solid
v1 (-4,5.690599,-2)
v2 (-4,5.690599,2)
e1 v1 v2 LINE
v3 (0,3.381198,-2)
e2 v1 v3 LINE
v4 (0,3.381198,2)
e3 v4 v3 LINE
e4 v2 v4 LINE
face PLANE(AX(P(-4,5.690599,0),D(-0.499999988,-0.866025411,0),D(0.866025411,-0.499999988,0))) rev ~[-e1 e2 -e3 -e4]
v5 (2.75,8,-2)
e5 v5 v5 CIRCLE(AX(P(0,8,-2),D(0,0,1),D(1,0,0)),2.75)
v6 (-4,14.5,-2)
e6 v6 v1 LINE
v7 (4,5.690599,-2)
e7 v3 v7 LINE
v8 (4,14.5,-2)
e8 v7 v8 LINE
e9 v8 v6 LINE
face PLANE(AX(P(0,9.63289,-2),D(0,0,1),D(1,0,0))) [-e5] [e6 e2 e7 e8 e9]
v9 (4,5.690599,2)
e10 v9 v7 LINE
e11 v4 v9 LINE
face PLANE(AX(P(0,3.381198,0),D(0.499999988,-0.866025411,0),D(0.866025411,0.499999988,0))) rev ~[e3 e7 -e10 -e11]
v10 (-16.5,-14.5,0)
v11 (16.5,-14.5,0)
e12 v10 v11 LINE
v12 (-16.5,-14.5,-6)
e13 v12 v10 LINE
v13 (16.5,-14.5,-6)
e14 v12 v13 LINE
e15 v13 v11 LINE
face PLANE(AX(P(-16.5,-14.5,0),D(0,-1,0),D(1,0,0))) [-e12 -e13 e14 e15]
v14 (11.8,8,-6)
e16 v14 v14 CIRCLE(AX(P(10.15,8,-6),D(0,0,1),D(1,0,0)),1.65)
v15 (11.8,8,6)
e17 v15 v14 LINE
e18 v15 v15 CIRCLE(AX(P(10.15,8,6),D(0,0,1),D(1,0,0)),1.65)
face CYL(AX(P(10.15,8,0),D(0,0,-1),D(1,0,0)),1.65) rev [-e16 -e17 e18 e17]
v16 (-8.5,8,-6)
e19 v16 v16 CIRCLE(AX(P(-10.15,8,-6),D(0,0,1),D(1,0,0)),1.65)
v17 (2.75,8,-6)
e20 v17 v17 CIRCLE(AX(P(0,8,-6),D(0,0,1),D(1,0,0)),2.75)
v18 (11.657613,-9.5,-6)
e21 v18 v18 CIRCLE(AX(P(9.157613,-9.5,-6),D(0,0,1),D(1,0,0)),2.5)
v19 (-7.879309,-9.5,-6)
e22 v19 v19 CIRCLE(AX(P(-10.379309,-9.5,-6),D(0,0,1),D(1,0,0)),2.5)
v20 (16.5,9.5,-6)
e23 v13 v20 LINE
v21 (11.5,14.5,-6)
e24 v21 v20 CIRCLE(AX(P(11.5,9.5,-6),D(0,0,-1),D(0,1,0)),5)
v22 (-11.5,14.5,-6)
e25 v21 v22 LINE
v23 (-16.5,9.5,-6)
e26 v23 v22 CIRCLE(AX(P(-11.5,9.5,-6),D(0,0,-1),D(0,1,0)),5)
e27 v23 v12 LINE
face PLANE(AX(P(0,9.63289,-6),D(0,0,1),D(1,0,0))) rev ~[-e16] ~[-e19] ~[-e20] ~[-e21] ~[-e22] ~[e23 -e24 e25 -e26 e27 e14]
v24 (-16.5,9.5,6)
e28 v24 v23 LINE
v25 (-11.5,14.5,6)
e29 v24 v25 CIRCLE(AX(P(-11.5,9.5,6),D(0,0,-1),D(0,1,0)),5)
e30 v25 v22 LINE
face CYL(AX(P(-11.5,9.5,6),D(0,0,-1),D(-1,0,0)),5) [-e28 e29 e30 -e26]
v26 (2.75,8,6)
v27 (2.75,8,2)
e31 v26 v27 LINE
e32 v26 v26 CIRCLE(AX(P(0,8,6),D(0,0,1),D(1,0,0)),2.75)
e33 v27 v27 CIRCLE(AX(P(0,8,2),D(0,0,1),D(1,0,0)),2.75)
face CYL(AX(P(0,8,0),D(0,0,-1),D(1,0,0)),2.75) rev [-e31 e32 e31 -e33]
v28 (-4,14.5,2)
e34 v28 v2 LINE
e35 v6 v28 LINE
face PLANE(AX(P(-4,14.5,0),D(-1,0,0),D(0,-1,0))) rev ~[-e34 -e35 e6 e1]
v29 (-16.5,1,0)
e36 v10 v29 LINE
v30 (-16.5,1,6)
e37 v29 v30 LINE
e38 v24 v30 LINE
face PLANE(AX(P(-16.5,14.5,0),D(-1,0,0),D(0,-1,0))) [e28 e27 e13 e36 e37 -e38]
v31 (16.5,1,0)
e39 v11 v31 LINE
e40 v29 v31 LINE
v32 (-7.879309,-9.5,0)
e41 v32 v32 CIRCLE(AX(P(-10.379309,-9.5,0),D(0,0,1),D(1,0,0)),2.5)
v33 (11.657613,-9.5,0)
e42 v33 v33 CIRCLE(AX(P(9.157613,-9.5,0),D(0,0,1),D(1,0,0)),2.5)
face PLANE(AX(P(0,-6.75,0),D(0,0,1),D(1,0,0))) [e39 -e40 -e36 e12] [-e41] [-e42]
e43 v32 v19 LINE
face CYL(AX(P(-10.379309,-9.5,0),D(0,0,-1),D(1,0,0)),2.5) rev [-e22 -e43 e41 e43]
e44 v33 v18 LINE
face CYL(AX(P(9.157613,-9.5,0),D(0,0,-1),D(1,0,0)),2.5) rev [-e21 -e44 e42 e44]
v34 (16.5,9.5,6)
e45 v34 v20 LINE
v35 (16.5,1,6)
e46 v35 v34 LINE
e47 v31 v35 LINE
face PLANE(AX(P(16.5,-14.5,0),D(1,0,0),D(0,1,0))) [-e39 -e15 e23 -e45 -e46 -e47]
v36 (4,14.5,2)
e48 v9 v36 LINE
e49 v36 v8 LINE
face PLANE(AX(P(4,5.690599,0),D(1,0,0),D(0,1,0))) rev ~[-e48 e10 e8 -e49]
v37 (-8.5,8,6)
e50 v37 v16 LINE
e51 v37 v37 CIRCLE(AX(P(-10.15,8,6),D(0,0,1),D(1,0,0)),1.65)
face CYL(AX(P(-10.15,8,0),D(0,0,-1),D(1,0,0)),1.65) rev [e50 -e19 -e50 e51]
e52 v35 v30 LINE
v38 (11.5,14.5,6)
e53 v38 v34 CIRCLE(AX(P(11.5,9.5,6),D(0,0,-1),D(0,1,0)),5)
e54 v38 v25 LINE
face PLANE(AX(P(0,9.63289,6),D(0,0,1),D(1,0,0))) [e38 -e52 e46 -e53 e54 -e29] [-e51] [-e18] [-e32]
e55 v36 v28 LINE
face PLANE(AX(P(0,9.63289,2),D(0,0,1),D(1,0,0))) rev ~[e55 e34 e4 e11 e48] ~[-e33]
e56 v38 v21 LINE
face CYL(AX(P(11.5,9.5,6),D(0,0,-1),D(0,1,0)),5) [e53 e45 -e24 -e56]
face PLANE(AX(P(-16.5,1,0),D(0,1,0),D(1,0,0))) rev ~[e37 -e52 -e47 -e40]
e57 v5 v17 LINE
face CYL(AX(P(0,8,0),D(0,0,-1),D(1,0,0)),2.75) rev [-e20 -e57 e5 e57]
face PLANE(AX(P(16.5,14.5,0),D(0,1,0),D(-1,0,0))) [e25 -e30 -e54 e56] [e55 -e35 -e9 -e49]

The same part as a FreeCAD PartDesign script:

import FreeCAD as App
import Part
import Sketcher
from FreeCAD import Vector
Q = App.Units.Quantity


def edges_at(feature, points):
    """Names of the edges that pass closest to the given points."""
    edges = feature.Shape.Edges
    near = lambda p: min(range(len(edges)), key=lambda i: edges[i].distToShape(Part.Vertex(*p))[0])
    return sorted({f"Edge{near(p) + 1}" for p in points})

doc = App.newDocument("Part")
body = doc.addObject("PartDesign::Body", "Body")

# Sketch on XY plane
sketch1 = body.newObject("Sketcher::SketchObject", "Sketch")
sketch1.AttachmentSupport = (doc.getObject("XY_Plane"), [""])
sketch1.MapMode = "FlatFace"
sketch1.addGeometry([
    Part.LineSegment(Vector(-16.5, 14.5, 0), Vector(-16.5, -14.5, 0)),  # 0
    Part.LineSegment(Vector(-16.5, -14.5, 0), Vector(16.5, -14.5, 0)),  # 1
    Part.LineSegment(Vector(16.5, -14.5, 0), Vector(16.5, 14.5, 0)),  # 2
    Part.LineSegment(Vector(16.5, 14.5, 0), Vector(-16.5, 14.5, 0)),  # 3
    Part.Circle(Vector(-10.4, -9.5, 0), Vector(0, 0, 1), 2.5),  # 4
    Part.Circle(Vector(9.2, -9.5, 0), Vector(0, 0, 1), 2.5),  # 5
    Part.Circle(Vector(-10.2, 8, 0), Vector(0, 0, 1), 1.6),  # 6
    Part.Circle(Vector(0, 8, 0), Vector(0, 0, 1), 2.8),  # 7
    Part.Circle(Vector(10.2, 8, 0), Vector(0, 0, 1), 1.6),  # 8
], False)
sketch1.addConstraint([
    Sketcher.Constraint("Coincident", 0, 2, 1, 1),
    Sketcher.Constraint("Coincident", 1, 2, 2, 1),
    Sketcher.Constraint("Coincident", 2, 2, 3, 1),
    Sketcher.Constraint("Coincident", 3, 2, 0, 1),
    Sketcher.Constraint("Vertical", 0),
    Sketcher.Constraint("Horizontal", 1),
    Sketcher.Constraint("Vertical", 2),
    Sketcher.Constraint("Horizontal", 3),
    Sketcher.Constraint("Equal", 4, 5),
    Sketcher.Constraint("Equal", 6, 8),
    Sketcher.Constraint("Symmetric", 0, 2, 2, 2, -1, 1),
    Sketcher.Constraint("Symmetric", 6, 3, 8, 3, -2),
    Sketcher.Constraint("PointOnObject", 7, 3, -2),
    Sketcher.Constraint("Horizontal", 4, 3, 5, 3),
    Sketcher.Constraint("Horizontal", 6, 3, 7, 3),
    Sketcher.Constraint("Diameter", 4, Q("5 mm")),
    Sketcher.Constraint("Diameter", 6, Q("3.3 mm")),
    Sketcher.Constraint("Diameter", 7, Q("5.5 mm")),
    Sketcher.Constraint("DistanceX", 1, 1, 1, 2, Q("33 mm")),
    Sketcher.Constraint("DistanceY", 0, 2, 0, 1, Q("29 mm")),
    Sketcher.Constraint("DistanceY", -1, 1, 6, 3, Q("8 mm")),
    Sketcher.Constraint("DistanceY", 0, 2, 4, 3, Q("5 mm")),
    Sketcher.Constraint("DistanceX", 6, 3, 8, 3, Q("20.3 mm")),
    Sketcher.Constraint("DistanceX", 4, 3, -1, 1, Q("10.379309 mm")),
    Sketcher.Constraint("DistanceX", 4, 3, 5, 3, Q("19.536922 mm")),
])
pad1 = body.newObject("PartDesign::Pad", "Pad")
pad1.Profile = sketch1
pad1.Length = 12
pad1.Midplane = True
doc.recompute()

fillet = body.newObject("PartDesign::Fillet", "Fillet")
fillet.Base = (pad1, edges_at(pad1, [(16.5, 14.5, 0), (-16.5, 14.5, 0)]))
fillet.Radius = 5

# Sketch on XY plane
sketch2 = body.newObject("Sketcher::SketchObject", "Sketch001")
sketch2.AttachmentSupport = (doc.getObject("XY_Plane"), [""])
sketch2.MapMode = "FlatFace"
sketch2.addGeometry([
    Part.LineSegment(Vector(4, 14.5, 0), Vector(-4, 14.5, 0)),  # 0
    Part.LineSegment(Vector(-4, 14.5, 0), Vector(-4, 5.7, 0)),  # 1
    Part.LineSegment(Vector(-4, 5.7, 0), Vector(0, 3.4, 0)),  # 2
    Part.LineSegment(Vector(0, 3.4, 0), Vector(4, 5.7, 0)),  # 3
    Part.LineSegment(Vector(4, 5.7, 0), Vector(4, 14.5, 0)),  # 4
    Part.Circle(Vector(0, 8, 0), Vector(0, 0, 1), 2.8),  # 5
], False)
sketch2.addConstraint([
    Sketcher.Constraint("Coincident", 0, 2, 1, 1),
    Sketcher.Constraint("Coincident", 1, 2, 2, 1),
    Sketcher.Constraint("Coincident", 2, 2, 3, 1),
    Sketcher.Constraint("Coincident", 3, 2, 4, 1),
    Sketcher.Constraint("Coincident", 4, 2, 0, 1),
    Sketcher.Constraint("Horizontal", 0),
    Sketcher.Constraint("Vertical", 1),
    Sketcher.Constraint("Vertical", 4),
    Sketcher.Constraint("Symmetric", 1, 2, 3, 2, -2),
    Sketcher.Constraint("PointOnObject", 5, 3, -2),
    Sketcher.Constraint("PointOnObject", 2, 2, -2),
    Sketcher.Constraint("Diameter", 5, Q("5.5 mm")),
    Sketcher.Constraint("DistanceX", 0, 2, 0, 1, Q("8 mm")),
    Sketcher.Constraint("Angle", 2, Q("-29.999999 deg")),
    Sketcher.Constraint("DistanceY", -1, 1, 5, 3, Q("8 mm")),
    Sketcher.Constraint("DistanceY", -1, 1, 0, 2, Q("14.5 mm")),
    Sketcher.Constraint("DistanceY", 1, 2, 1, 1, Q("8.809401 mm")),
])
pocket1 = body.newObject("PartDesign::Pocket", "Pocket")
pocket1.Profile = sketch2
pocket1.Length = 4
pocket1.Midplane = True

# Sketch on XY plane
sketch3 = body.newObject("Sketcher::SketchObject", "Sketch002")
sketch3.AttachmentSupport = (doc.getObject("XY_Plane"), [""])
sketch3.MapMode = "FlatFace"
sketch3.addGeometry([
    Part.LineSegment(Vector(-16.5, 1, 0), Vector(-16.5, -14.5, 0)),  # 0
    Part.LineSegment(Vector(-16.5, -14.5, 0), Vector(16.5, -14.5, 0)),  # 1
    Part.LineSegment(Vector(16.5, -14.5, 0), Vector(16.5, 1, 0)),  # 2
    Part.LineSegment(Vector(16.5, 1, 0), Vector(-16.5, 1, 0)),  # 3
    Part.Circle(Vector(-10.4, -9.5, 0), Vector(0, 0, 1), 2.5),  # 4
    Part.Circle(Vector(9.2, -9.5, 0), Vector(0, 0, 1), 2.5),  # 5
], False)
sketch3.addConstraint([
    Sketcher.Constraint("Coincident", 0, 2, 1, 1),
    Sketcher.Constraint("Coincident", 1, 2, 2, 1),
    Sketcher.Constraint("Coincident", 2, 2, 3, 1),
    Sketcher.Constraint("Coincident", 3, 2, 0, 1),
    Sketcher.Constraint("Vertical", 0),
    Sketcher.Constraint("Horizontal", 1),
    Sketcher.Constraint("Vertical", 2),
    Sketcher.Constraint("Horizontal", 3),
    Sketcher.Constraint("Equal", 4, 5),
    Sketcher.Constraint("Horizontal", 4, 3, 5, 3),
    Sketcher.Constraint("Diameter", 4, Q("5 mm")),
    Sketcher.Constraint("DistanceX", 1, 1, 1, 2, Q("33 mm")),
    Sketcher.Constraint("DistanceY", 0, 2, 0, 1, Q("15.5 mm")),
    Sketcher.Constraint("DistanceY", -1, 1, 2, 2, Q("1 mm")),
    Sketcher.Constraint("DistanceY", 0, 2, 4, 3, Q("5 mm")),
    Sketcher.Constraint("DistanceX", 0, 2, -1, 1, Q("16.5 mm")),
    Sketcher.Constraint("DistanceX", 4, 3, -1, 1, Q("10.379309 mm")),
    Sketcher.Constraint("DistanceX", 4, 3, 5, 3, Q("19.536922 mm")),
])
pocket2 = body.newObject("PartDesign::Pocket", "Pocket001")
pocket2.Profile = sketch3
pocket2.Length = 25
pocket2.Reversed = True

doc.recompute()
